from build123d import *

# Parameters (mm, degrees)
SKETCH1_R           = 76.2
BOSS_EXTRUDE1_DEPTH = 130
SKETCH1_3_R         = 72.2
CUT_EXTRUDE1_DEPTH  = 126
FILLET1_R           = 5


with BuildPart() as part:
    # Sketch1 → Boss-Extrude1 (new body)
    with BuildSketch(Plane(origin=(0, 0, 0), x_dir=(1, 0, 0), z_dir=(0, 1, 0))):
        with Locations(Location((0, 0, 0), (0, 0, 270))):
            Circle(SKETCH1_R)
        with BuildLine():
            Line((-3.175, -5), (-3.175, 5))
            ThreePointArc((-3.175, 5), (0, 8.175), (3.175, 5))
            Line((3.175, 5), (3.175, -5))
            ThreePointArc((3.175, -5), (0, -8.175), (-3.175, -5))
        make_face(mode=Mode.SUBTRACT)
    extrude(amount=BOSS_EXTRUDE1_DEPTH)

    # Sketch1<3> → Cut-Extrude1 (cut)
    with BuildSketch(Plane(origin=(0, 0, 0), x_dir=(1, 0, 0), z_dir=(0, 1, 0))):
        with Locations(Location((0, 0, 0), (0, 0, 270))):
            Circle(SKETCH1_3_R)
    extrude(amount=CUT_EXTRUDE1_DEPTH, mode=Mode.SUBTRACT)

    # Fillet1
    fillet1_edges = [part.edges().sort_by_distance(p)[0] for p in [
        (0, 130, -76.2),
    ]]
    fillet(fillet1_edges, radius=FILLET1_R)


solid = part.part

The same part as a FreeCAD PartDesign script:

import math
import FreeCAD as App
import Part
import Sketcher
from FreeCAD import Vector
Q = App.Units.Quantity


def edges_at(feature, points):
    """Names of the edges that pass closest to the given points."""
    edges = feature.Shape.Edges
    near = lambda p: min(range(len(edges)), key=lambda i: edges[i].distToShape(Part.Vertex(*p))[0])
    return sorted({f"Edge{near(p) + 1}" for p in points})

doc = App.newDocument("Part")
body = doc.addObject("PartDesign::Body", "Body")

# Sketch on XZ plane
sketch1 = body.newObject("Sketcher::SketchObject", "Sketch")
sketch1.AttachmentSupport = (doc.getObject("XZ_Plane"), [""])
sketch1.MapMode = "FlatFace"
sketch1.addGeometry([
    Part.Circle(Vector(0, 0, 0), Vector(0, 0, 1), 76.2),  # 0
    Part.ArcOfCircle(Part.Circle(Vector(0, 5, 0), Vector(0, 0, 1), 3.2), math.radians(0), math.radians(180)),  # 1
    Part.LineSegment(Vector(-3.2, 5, 0), Vector(-3.2, -5, 0)),  # 2
    Part.ArcOfCircle(Part.Circle(Vector(0, -5, 0), Vector(0, 0, 1), 3.2), math.radians(180), math.radians(360)),  # 3
    Part.LineSegment(Vector(3.2, -5, 0), Vector(3.2, 5, 0)),  # 4
], False)
sketch1.addConstraint([
    Sketcher.Constraint("Tangent", 1, 2, 2, 1),
    Sketcher.Constraint("Tangent", 2, 2, 3, 1),
    Sketcher.Constraint("Tangent", 3, 2, 4, 1),
    Sketcher.Constraint("Tangent", 4, 2, 1, 1),
    Sketcher.Constraint("Vertical", 2),
    Sketcher.Constraint("Vertical", 4),
    Sketcher.Constraint("Coincident", 0, 3, -1, 1),
    Sketcher.Constraint("Symmetric", 1, 3, 3, 3, -1, 1),
    Sketcher.Constraint("Diameter", 0, Q("152.4 mm")),
    Sketcher.Constraint("DistanceY", 2, 2, 2, 1, Q("10 mm")),
    Sketcher.Constraint("Radius", 1, Q("3.175 mm")),
])
pad1 = body.newObject("PartDesign::Pad", "Pad")
pad1.Profile = sketch1
pad1.Length = 130
pad1.Reversed = True

# Sketch on XZ plane
sketch2 = body.newObject("Sketcher::SketchObject", "Sketch001")
sketch2.AttachmentSupport = (doc.getObject("XZ_Plane"), [""])
sketch2.MapMode = "FlatFace"
sketch2.addGeometry(Part.Circle(Vector(0, 0, 0), Vector(0, 0, 1), 72), False)
sketch2.addConstraint([
    Sketcher.Constraint("Coincident", 0, 3, -1, 1),
    Sketcher.Constraint("Diameter", 0, Q("144.4 mm")),
])
pocket1 = body.newObject("PartDesign::Pocket", "Pocket")
pocket1.Profile = sketch2
pocket1.Length = 126
doc.recompute()

fillet = body.newObject("PartDesign::Fillet", "Fillet")
fillet.Base = (pocket1, edges_at(pocket1, [(0, 130, -76.2)]))
fillet.Radius = 5

doc.recompute()
